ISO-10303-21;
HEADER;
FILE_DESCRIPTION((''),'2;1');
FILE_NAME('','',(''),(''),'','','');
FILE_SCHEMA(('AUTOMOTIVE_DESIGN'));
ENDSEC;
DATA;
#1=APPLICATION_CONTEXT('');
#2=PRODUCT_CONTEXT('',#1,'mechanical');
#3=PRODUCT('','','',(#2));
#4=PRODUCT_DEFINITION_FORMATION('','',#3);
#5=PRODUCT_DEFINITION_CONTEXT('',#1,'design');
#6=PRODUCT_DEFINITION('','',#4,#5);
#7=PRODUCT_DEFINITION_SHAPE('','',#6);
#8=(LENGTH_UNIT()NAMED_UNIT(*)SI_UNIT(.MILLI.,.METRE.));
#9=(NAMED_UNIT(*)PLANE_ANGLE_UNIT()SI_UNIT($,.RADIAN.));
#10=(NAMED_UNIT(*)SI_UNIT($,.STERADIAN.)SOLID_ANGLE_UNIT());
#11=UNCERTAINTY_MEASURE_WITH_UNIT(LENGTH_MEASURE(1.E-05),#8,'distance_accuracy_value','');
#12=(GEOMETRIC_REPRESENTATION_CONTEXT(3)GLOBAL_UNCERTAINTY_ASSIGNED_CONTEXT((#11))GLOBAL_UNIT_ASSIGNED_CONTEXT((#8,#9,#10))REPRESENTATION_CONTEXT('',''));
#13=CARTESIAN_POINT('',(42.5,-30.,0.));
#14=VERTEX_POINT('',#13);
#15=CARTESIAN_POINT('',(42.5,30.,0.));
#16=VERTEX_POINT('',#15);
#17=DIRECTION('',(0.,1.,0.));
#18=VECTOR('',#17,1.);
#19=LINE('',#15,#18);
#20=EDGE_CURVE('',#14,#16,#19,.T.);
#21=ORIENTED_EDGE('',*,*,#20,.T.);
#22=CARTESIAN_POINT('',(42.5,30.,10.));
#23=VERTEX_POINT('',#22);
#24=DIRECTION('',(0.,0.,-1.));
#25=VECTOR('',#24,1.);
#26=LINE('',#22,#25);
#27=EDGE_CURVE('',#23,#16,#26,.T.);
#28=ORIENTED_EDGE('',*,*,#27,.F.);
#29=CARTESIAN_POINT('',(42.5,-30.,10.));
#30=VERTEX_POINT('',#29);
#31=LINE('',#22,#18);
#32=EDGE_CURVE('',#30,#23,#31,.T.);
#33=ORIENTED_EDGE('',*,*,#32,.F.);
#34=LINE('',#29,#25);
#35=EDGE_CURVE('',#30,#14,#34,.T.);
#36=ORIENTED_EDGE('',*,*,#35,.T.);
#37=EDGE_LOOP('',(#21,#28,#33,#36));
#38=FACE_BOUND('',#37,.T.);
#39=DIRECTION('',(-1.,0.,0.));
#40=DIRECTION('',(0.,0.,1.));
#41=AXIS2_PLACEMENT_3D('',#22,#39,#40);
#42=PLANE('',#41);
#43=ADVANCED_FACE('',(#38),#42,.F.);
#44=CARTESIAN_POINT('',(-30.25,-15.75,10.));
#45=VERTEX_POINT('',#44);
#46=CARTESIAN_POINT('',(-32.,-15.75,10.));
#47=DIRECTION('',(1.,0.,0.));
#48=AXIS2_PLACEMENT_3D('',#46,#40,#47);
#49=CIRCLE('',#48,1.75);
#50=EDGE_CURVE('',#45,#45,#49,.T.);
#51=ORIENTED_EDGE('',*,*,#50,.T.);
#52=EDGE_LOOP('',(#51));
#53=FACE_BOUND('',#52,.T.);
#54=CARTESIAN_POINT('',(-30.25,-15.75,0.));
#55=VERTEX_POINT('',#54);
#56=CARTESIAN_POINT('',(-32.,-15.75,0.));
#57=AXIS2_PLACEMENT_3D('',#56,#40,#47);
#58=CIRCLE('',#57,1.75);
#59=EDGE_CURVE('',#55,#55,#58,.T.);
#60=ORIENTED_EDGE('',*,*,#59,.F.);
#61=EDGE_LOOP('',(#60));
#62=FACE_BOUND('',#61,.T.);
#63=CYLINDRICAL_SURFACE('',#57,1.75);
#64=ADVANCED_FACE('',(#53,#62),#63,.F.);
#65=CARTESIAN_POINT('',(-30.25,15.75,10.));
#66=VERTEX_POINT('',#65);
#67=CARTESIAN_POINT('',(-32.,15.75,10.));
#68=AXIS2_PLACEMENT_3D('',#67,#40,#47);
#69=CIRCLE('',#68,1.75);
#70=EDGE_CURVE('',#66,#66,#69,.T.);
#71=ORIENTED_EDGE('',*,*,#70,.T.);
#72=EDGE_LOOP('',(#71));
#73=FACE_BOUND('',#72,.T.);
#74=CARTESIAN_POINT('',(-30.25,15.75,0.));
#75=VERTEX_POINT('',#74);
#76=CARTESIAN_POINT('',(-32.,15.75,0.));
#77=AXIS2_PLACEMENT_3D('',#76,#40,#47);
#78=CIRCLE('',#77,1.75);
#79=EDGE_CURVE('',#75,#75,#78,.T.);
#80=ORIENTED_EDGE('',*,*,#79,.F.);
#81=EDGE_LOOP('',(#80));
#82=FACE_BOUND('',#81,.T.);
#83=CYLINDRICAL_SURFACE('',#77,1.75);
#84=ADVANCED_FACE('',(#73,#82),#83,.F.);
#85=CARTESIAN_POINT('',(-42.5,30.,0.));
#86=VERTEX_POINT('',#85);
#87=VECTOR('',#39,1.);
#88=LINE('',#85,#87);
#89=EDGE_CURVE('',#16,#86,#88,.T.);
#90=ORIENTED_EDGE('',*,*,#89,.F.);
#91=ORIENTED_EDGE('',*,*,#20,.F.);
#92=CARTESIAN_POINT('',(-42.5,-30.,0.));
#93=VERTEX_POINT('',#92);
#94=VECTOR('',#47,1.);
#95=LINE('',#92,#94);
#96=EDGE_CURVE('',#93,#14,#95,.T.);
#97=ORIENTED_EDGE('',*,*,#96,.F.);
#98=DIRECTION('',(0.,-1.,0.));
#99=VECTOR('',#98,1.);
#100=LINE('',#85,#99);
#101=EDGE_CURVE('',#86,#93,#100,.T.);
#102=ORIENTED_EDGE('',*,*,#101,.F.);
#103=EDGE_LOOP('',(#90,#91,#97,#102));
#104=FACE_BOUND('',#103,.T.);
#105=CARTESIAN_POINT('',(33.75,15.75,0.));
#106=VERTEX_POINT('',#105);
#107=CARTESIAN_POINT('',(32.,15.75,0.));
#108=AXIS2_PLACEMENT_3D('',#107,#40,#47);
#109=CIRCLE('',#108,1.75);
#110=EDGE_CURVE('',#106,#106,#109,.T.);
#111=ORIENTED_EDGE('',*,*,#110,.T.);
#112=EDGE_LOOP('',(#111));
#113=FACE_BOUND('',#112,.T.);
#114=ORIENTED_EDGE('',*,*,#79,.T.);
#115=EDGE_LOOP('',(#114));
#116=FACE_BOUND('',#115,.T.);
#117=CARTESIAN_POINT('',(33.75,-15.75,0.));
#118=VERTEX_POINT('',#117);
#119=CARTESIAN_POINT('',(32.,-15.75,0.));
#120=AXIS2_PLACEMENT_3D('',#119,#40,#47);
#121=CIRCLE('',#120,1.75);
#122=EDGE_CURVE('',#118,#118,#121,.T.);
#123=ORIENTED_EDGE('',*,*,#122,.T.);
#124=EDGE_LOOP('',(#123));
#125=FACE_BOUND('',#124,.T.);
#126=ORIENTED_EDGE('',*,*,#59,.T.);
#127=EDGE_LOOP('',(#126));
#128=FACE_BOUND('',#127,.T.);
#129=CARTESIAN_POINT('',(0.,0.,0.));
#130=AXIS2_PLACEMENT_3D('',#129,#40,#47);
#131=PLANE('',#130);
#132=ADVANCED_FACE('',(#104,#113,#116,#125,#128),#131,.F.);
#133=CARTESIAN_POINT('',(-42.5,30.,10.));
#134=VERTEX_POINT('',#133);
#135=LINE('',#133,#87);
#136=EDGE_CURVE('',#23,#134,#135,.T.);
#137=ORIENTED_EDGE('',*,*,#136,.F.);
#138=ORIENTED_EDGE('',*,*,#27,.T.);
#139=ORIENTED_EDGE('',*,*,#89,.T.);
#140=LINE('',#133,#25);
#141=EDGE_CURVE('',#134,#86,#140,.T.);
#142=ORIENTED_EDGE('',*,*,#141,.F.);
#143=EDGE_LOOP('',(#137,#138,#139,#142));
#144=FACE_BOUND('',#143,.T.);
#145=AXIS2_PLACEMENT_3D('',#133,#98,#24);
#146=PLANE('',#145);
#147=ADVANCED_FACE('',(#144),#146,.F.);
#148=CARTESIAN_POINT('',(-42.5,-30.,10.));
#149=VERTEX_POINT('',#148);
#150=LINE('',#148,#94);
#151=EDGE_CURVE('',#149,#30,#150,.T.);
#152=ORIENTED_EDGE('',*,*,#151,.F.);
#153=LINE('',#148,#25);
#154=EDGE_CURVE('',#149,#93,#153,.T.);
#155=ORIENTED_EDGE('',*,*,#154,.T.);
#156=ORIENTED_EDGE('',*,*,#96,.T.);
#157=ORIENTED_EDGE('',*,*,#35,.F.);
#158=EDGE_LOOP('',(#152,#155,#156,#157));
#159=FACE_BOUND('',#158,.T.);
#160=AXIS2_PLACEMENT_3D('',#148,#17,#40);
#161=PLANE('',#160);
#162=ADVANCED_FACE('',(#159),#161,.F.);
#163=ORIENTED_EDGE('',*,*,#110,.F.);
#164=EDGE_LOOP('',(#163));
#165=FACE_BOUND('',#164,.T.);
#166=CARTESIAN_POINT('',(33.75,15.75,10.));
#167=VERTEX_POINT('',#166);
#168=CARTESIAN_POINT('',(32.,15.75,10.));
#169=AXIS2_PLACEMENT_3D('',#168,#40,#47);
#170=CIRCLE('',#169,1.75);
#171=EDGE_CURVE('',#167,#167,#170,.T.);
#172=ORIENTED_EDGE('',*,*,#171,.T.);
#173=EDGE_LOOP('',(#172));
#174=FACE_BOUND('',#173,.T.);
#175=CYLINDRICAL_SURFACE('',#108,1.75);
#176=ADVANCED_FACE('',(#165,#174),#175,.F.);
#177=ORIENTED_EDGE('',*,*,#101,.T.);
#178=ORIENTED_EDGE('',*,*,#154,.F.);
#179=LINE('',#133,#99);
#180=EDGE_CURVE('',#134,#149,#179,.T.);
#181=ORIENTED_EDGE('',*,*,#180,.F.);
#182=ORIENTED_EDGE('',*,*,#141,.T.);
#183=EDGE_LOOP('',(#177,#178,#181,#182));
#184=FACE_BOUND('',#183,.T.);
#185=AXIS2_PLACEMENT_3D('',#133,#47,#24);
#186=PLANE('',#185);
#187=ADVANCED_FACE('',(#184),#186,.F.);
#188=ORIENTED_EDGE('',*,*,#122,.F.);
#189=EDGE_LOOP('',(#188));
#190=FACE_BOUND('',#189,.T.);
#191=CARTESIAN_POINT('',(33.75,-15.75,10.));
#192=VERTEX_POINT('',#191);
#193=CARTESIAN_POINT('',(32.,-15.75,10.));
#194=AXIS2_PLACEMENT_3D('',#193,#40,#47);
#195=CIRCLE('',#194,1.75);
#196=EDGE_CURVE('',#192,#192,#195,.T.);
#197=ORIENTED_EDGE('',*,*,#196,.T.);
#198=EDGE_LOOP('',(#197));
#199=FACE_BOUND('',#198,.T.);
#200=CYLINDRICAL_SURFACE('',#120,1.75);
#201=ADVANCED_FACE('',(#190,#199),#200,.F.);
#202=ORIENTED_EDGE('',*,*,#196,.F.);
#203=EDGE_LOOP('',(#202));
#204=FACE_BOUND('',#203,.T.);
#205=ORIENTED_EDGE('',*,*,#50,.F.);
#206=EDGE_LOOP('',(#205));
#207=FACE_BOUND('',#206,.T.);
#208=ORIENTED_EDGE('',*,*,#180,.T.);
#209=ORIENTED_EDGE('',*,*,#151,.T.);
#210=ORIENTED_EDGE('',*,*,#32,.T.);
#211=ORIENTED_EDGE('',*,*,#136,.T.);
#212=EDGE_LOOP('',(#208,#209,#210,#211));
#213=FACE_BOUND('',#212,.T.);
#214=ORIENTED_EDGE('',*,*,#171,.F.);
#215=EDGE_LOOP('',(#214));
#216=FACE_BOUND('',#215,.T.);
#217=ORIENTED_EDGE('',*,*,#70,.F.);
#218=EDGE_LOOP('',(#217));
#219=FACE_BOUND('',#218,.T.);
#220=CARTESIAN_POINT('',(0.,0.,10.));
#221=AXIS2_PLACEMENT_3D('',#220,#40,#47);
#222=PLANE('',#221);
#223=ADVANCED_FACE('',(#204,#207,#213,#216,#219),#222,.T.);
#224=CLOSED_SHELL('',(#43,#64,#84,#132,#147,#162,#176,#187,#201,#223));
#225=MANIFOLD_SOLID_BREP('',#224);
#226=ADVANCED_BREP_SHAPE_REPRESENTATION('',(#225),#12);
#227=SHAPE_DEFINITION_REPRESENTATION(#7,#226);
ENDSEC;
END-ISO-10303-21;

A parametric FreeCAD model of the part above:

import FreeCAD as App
import Part
import Sketcher
from FreeCAD import Vector

doc = App.newDocument("Part")
body = doc.addObject("PartDesign::Body", "Body")

sketch1 = doc.addObject("Sketcher::SketchObject", "Sketch")
body.addObject(sketch1)
sketch1.AttachmentSupport = (doc.XY_Plane, [""])
sketch1.MapMode = "FlatFace"
sketch1.addGeometry([
    Part.LineSegment(Vector(-42, 30, 0), Vector(-42, -30, 0)),
    Part.LineSegment(Vector(-42, -30, 0), Vector(42, -30, 0)),
    Part.LineSegment(Vector(42, -30, 0), Vector(42, 30, 0)),
    Part.LineSegment(Vector(42, 30, 0), Vector(-42, 30, 0)),
], False)
sketch1.addConstraint([
    Sketcher.Constraint("Coincident", 0, 2, 1, 1),
    Sketcher.Constraint("Coincident", 1, 2, 2, 1),
    Sketcher.Constraint("Coincident", 2, 2, 3, 1),
    Sketcher.Constraint("Coincident", 3, 2, 0, 1),
    Sketcher.Constraint("Vertical", 0),
    Sketcher.Constraint("Horizontal", 1),
    Sketcher.Constraint("Vertical", 2),
    Sketcher.Constraint("Horizontal", 3),
    Sketcher.Constraint("Symmetric", 0, 2, 2, 2, -1, 1),
    Sketcher.Constraint("DistanceX", 1, 1, 1, 2, 85.0),
    Sketcher.Constraint("DistanceY", 0, 2, 0, 1, 60.0),
])
pad1 = doc.addObject("PartDesign::Pad", "Pad")
body.addObject(pad1)
pad1.Profile = sketch1
pad1.Length = 10

sketch2 = doc.addObject("Sketcher::SketchObject", "Sketch001")
body.addObject(sketch2)
sketch2.AttachmentSupport = (doc.XY_Plane, [""])
sketch2.MapMode = "FlatFace"
sketch2.AttachmentOffset = App.Placement(Vector(0, 0, 10), App.Rotation())
sketch2.addGeometry([
    Part.Circle(Vector(-32, 15.8, 0), Vector(0, 0, 1), 1.8),
    Part.Circle(Vector(-32, -15.8, 0), Vector(0, 0, 1), 1.8),
    Part.Circle(Vector(32, 15.8, 0), Vector(0, 0, 1), 1.8),
    Part.Circle(Vector(32, -15.8, 0), Vector(0, 0, 1), 1.8),
], False)
sketch2.addConstraint([
    Sketcher.Constraint("Equal", 0, 1),
    Sketcher.Constraint("Equal", 1, 2),
    Sketcher.Constraint("Equal", 2, 3),
    Sketcher.Constraint("Symmetric", 1, 3, 2, 3, -1, 1),
    Sketcher.Constraint("Symmetric", 0, 3, 3, 3, -1, 1),
    Sketcher.Constraint("Symmetric", 0, 3, 2, 3, -2),
    Sketcher.Constraint("Diameter", 0, 3.5),
    Sketcher.Constraint("DistanceX", 0, 3, -1, 1, 32.0),
    Sketcher.Constraint("DistanceY", 1, 3, 0, 3, 31.5),
])
pocket1 = doc.addObject("PartDesign::Pocket", "Pocket")
body.addObject(pocket1)
pocket1.Profile = sketch2
pocket1.Length = 10

doc.recompute()
